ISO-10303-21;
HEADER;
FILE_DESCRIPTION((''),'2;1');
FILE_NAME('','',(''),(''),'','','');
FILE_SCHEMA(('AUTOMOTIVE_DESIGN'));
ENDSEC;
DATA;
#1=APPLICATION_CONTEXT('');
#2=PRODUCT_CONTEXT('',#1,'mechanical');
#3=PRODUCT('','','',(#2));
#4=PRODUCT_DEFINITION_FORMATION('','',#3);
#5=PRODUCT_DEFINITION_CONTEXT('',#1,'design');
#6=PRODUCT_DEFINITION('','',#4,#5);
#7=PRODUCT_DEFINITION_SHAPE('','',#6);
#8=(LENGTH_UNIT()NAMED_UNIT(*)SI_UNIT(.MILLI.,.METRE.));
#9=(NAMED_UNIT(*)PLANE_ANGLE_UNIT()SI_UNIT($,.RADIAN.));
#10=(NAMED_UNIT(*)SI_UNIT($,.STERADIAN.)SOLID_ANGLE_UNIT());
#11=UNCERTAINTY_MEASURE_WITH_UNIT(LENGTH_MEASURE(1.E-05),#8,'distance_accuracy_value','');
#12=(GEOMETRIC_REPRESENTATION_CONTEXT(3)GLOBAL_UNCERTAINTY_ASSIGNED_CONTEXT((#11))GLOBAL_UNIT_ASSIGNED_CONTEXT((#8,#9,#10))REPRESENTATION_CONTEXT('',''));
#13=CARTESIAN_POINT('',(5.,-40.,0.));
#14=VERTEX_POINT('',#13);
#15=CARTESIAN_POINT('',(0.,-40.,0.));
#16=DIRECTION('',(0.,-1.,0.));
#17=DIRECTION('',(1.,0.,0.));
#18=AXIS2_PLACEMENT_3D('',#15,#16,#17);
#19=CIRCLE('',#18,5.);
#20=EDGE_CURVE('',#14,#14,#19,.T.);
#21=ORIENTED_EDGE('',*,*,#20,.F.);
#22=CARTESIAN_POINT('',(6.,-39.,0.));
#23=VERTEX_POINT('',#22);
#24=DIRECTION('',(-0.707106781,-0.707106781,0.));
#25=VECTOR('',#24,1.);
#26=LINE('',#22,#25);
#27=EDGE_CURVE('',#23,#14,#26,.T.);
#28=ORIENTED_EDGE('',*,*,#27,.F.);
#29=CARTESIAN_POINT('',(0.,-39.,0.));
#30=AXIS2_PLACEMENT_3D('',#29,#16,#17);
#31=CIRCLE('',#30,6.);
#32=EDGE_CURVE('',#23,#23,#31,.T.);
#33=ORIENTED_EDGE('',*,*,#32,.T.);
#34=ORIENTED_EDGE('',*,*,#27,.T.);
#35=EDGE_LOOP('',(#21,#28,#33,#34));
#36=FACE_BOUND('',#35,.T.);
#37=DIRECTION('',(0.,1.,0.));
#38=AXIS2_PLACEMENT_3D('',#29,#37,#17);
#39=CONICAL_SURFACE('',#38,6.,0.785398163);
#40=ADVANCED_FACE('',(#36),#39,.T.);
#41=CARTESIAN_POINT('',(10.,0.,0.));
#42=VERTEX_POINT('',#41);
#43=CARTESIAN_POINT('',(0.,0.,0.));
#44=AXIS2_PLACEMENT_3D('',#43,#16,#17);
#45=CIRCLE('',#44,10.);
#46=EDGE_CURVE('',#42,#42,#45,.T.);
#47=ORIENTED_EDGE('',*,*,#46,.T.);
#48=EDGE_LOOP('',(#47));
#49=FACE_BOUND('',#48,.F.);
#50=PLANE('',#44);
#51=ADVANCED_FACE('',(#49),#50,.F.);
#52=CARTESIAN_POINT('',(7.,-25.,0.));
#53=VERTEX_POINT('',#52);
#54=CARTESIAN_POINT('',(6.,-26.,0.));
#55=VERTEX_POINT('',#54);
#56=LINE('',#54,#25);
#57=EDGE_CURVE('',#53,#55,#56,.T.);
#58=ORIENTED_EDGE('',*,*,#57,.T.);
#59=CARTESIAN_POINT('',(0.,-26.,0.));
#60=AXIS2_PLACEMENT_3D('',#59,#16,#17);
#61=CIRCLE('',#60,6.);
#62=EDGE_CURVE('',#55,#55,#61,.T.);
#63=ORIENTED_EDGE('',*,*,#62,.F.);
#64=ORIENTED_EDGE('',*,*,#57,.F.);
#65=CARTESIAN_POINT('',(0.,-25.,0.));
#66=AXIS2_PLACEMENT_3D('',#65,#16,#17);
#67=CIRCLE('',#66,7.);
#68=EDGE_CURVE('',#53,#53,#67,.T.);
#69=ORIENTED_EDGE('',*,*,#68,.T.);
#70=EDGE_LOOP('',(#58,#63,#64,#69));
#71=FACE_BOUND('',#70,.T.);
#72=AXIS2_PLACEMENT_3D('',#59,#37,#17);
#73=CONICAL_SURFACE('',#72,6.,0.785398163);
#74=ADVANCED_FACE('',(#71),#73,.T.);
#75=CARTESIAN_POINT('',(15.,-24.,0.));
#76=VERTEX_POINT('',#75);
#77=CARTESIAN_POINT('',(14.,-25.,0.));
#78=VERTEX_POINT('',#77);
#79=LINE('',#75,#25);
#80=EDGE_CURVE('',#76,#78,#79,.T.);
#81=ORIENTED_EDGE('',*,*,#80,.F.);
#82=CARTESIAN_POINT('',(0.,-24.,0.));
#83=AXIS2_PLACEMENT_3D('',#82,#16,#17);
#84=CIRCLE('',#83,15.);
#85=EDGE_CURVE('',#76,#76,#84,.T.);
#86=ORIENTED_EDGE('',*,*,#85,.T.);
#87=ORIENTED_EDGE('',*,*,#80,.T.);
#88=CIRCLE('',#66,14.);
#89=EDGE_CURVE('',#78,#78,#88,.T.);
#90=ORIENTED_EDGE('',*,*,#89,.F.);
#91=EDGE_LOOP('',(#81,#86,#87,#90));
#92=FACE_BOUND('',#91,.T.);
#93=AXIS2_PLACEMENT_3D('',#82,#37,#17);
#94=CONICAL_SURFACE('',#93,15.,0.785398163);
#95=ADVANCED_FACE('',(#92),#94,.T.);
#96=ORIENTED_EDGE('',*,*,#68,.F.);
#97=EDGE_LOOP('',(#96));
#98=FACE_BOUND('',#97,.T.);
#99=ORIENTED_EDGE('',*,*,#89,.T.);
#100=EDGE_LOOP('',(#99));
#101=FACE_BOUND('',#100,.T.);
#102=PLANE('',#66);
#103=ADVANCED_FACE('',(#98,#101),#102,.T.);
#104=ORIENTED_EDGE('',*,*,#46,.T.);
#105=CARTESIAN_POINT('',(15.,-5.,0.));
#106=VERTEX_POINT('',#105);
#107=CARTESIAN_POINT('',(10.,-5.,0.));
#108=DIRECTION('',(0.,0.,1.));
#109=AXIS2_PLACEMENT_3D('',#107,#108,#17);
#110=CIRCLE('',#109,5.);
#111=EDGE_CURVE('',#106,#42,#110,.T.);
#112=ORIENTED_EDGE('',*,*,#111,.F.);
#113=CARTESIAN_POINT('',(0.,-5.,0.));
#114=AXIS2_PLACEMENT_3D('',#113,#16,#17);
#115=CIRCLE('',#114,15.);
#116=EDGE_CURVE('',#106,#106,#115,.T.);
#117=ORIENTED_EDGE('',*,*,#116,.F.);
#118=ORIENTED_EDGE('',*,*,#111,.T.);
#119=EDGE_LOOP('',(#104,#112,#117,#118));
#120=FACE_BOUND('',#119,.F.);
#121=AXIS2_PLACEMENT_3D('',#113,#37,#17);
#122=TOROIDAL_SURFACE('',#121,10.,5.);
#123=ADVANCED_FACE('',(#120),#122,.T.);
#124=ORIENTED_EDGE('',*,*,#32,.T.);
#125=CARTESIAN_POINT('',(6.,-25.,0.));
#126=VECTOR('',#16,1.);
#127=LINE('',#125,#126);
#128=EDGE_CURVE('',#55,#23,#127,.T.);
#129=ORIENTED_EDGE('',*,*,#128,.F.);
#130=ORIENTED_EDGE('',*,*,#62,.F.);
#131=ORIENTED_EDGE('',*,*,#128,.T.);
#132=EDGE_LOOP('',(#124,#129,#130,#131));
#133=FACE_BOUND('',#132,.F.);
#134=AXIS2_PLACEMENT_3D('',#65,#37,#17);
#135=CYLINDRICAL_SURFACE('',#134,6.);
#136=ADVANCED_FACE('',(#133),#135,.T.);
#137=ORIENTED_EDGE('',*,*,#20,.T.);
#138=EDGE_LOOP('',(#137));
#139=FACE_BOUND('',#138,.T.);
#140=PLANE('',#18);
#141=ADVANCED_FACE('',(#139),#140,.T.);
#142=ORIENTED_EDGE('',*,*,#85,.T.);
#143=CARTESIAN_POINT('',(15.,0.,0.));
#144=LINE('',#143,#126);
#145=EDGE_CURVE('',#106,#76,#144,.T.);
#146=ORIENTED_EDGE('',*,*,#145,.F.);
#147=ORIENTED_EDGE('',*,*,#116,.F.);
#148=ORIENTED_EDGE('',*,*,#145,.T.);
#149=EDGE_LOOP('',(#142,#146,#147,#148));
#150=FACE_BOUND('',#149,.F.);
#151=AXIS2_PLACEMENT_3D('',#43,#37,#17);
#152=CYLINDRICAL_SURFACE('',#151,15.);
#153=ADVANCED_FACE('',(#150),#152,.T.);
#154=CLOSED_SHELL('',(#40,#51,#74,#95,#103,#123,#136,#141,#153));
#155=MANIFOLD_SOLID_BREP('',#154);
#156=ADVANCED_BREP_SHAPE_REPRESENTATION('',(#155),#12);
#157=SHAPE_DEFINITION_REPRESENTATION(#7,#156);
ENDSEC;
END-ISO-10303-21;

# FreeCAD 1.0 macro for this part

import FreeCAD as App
import Part
import Sketcher

V = App.Vector


def edges_at(feature, points):
    """Names of the edges that pass closest to the given points."""
    edges = feature.Shape.Edges
    near = lambda p: min(range(len(edges)), key=lambda i: edges[i].distToShape(Part.Vertex(*p))[0])
    return sorted({f"Edge{near(p) + 1}" for p in points})

doc = App.newDocument("Part")
body = doc.addObject("PartDesign::Body", "Body")

# Sketch on XZ plane
sketch1 = body.newObject("Sketcher::SketchObject", "Sketch")
sketch1.AttachmentSupport = (doc.getObject("XZ_Plane"), [""])
sketch1.MapMode = "FlatFace"
sketch1.addGeometry(Part.Circle(V(0, 0, 0), V(0, 0, 1), 15), False)
sketch1.addConstraint([
    Sketcher.Constraint("Coincident", 0, 3, -1, 1),
    Sketcher.Constraint("Diameter", 0, 30.0),
])
pad1 = body.newObject("PartDesign::Pad", "Pad")
pad1.Profile = sketch1
pad1.Length = 25

# Sketch on XZ plane
sketch2 = body.newObject("Sketcher::SketchObject", "Sketch001")
sketch2.AttachmentSupport = (doc.getObject("XZ_Plane"), [""])
sketch2.MapMode = "FlatFace"
sketch2.AttachmentOffset = App.Placement(V(0, 0, 25), App.Rotation())
sketch2.addGeometry(Part.Circle(V(0, 0, 0), V(0, 0, 1), 6), False)
sketch2.addConstraint([
    Sketcher.Constraint("Coincident", 0, 3, -1, 1),
    Sketcher.Constraint("Diameter", 0, 12.0),
])
pad2 = body.newObject("PartDesign::Pad", "Pad001")
pad2.Profile = sketch2
pad2.Length = 15
doc.recompute()

fillet = body.newObject("PartDesign::Fillet", "Fillet")
fillet.Base = (pad2, edges_at(pad2, [(-15, 0, 0)]))
fillet.Radius = 5
doc.recompute()

chamfer = body.newObject("PartDesign::Chamfer", "Chamfer")
chamfer.Base = (fillet, edges_at(fillet, [(-6, -40, 0), (-6, -25, 0), (-15, -25, 0)]))
chamfer.Size = 1

doc.recompute()
